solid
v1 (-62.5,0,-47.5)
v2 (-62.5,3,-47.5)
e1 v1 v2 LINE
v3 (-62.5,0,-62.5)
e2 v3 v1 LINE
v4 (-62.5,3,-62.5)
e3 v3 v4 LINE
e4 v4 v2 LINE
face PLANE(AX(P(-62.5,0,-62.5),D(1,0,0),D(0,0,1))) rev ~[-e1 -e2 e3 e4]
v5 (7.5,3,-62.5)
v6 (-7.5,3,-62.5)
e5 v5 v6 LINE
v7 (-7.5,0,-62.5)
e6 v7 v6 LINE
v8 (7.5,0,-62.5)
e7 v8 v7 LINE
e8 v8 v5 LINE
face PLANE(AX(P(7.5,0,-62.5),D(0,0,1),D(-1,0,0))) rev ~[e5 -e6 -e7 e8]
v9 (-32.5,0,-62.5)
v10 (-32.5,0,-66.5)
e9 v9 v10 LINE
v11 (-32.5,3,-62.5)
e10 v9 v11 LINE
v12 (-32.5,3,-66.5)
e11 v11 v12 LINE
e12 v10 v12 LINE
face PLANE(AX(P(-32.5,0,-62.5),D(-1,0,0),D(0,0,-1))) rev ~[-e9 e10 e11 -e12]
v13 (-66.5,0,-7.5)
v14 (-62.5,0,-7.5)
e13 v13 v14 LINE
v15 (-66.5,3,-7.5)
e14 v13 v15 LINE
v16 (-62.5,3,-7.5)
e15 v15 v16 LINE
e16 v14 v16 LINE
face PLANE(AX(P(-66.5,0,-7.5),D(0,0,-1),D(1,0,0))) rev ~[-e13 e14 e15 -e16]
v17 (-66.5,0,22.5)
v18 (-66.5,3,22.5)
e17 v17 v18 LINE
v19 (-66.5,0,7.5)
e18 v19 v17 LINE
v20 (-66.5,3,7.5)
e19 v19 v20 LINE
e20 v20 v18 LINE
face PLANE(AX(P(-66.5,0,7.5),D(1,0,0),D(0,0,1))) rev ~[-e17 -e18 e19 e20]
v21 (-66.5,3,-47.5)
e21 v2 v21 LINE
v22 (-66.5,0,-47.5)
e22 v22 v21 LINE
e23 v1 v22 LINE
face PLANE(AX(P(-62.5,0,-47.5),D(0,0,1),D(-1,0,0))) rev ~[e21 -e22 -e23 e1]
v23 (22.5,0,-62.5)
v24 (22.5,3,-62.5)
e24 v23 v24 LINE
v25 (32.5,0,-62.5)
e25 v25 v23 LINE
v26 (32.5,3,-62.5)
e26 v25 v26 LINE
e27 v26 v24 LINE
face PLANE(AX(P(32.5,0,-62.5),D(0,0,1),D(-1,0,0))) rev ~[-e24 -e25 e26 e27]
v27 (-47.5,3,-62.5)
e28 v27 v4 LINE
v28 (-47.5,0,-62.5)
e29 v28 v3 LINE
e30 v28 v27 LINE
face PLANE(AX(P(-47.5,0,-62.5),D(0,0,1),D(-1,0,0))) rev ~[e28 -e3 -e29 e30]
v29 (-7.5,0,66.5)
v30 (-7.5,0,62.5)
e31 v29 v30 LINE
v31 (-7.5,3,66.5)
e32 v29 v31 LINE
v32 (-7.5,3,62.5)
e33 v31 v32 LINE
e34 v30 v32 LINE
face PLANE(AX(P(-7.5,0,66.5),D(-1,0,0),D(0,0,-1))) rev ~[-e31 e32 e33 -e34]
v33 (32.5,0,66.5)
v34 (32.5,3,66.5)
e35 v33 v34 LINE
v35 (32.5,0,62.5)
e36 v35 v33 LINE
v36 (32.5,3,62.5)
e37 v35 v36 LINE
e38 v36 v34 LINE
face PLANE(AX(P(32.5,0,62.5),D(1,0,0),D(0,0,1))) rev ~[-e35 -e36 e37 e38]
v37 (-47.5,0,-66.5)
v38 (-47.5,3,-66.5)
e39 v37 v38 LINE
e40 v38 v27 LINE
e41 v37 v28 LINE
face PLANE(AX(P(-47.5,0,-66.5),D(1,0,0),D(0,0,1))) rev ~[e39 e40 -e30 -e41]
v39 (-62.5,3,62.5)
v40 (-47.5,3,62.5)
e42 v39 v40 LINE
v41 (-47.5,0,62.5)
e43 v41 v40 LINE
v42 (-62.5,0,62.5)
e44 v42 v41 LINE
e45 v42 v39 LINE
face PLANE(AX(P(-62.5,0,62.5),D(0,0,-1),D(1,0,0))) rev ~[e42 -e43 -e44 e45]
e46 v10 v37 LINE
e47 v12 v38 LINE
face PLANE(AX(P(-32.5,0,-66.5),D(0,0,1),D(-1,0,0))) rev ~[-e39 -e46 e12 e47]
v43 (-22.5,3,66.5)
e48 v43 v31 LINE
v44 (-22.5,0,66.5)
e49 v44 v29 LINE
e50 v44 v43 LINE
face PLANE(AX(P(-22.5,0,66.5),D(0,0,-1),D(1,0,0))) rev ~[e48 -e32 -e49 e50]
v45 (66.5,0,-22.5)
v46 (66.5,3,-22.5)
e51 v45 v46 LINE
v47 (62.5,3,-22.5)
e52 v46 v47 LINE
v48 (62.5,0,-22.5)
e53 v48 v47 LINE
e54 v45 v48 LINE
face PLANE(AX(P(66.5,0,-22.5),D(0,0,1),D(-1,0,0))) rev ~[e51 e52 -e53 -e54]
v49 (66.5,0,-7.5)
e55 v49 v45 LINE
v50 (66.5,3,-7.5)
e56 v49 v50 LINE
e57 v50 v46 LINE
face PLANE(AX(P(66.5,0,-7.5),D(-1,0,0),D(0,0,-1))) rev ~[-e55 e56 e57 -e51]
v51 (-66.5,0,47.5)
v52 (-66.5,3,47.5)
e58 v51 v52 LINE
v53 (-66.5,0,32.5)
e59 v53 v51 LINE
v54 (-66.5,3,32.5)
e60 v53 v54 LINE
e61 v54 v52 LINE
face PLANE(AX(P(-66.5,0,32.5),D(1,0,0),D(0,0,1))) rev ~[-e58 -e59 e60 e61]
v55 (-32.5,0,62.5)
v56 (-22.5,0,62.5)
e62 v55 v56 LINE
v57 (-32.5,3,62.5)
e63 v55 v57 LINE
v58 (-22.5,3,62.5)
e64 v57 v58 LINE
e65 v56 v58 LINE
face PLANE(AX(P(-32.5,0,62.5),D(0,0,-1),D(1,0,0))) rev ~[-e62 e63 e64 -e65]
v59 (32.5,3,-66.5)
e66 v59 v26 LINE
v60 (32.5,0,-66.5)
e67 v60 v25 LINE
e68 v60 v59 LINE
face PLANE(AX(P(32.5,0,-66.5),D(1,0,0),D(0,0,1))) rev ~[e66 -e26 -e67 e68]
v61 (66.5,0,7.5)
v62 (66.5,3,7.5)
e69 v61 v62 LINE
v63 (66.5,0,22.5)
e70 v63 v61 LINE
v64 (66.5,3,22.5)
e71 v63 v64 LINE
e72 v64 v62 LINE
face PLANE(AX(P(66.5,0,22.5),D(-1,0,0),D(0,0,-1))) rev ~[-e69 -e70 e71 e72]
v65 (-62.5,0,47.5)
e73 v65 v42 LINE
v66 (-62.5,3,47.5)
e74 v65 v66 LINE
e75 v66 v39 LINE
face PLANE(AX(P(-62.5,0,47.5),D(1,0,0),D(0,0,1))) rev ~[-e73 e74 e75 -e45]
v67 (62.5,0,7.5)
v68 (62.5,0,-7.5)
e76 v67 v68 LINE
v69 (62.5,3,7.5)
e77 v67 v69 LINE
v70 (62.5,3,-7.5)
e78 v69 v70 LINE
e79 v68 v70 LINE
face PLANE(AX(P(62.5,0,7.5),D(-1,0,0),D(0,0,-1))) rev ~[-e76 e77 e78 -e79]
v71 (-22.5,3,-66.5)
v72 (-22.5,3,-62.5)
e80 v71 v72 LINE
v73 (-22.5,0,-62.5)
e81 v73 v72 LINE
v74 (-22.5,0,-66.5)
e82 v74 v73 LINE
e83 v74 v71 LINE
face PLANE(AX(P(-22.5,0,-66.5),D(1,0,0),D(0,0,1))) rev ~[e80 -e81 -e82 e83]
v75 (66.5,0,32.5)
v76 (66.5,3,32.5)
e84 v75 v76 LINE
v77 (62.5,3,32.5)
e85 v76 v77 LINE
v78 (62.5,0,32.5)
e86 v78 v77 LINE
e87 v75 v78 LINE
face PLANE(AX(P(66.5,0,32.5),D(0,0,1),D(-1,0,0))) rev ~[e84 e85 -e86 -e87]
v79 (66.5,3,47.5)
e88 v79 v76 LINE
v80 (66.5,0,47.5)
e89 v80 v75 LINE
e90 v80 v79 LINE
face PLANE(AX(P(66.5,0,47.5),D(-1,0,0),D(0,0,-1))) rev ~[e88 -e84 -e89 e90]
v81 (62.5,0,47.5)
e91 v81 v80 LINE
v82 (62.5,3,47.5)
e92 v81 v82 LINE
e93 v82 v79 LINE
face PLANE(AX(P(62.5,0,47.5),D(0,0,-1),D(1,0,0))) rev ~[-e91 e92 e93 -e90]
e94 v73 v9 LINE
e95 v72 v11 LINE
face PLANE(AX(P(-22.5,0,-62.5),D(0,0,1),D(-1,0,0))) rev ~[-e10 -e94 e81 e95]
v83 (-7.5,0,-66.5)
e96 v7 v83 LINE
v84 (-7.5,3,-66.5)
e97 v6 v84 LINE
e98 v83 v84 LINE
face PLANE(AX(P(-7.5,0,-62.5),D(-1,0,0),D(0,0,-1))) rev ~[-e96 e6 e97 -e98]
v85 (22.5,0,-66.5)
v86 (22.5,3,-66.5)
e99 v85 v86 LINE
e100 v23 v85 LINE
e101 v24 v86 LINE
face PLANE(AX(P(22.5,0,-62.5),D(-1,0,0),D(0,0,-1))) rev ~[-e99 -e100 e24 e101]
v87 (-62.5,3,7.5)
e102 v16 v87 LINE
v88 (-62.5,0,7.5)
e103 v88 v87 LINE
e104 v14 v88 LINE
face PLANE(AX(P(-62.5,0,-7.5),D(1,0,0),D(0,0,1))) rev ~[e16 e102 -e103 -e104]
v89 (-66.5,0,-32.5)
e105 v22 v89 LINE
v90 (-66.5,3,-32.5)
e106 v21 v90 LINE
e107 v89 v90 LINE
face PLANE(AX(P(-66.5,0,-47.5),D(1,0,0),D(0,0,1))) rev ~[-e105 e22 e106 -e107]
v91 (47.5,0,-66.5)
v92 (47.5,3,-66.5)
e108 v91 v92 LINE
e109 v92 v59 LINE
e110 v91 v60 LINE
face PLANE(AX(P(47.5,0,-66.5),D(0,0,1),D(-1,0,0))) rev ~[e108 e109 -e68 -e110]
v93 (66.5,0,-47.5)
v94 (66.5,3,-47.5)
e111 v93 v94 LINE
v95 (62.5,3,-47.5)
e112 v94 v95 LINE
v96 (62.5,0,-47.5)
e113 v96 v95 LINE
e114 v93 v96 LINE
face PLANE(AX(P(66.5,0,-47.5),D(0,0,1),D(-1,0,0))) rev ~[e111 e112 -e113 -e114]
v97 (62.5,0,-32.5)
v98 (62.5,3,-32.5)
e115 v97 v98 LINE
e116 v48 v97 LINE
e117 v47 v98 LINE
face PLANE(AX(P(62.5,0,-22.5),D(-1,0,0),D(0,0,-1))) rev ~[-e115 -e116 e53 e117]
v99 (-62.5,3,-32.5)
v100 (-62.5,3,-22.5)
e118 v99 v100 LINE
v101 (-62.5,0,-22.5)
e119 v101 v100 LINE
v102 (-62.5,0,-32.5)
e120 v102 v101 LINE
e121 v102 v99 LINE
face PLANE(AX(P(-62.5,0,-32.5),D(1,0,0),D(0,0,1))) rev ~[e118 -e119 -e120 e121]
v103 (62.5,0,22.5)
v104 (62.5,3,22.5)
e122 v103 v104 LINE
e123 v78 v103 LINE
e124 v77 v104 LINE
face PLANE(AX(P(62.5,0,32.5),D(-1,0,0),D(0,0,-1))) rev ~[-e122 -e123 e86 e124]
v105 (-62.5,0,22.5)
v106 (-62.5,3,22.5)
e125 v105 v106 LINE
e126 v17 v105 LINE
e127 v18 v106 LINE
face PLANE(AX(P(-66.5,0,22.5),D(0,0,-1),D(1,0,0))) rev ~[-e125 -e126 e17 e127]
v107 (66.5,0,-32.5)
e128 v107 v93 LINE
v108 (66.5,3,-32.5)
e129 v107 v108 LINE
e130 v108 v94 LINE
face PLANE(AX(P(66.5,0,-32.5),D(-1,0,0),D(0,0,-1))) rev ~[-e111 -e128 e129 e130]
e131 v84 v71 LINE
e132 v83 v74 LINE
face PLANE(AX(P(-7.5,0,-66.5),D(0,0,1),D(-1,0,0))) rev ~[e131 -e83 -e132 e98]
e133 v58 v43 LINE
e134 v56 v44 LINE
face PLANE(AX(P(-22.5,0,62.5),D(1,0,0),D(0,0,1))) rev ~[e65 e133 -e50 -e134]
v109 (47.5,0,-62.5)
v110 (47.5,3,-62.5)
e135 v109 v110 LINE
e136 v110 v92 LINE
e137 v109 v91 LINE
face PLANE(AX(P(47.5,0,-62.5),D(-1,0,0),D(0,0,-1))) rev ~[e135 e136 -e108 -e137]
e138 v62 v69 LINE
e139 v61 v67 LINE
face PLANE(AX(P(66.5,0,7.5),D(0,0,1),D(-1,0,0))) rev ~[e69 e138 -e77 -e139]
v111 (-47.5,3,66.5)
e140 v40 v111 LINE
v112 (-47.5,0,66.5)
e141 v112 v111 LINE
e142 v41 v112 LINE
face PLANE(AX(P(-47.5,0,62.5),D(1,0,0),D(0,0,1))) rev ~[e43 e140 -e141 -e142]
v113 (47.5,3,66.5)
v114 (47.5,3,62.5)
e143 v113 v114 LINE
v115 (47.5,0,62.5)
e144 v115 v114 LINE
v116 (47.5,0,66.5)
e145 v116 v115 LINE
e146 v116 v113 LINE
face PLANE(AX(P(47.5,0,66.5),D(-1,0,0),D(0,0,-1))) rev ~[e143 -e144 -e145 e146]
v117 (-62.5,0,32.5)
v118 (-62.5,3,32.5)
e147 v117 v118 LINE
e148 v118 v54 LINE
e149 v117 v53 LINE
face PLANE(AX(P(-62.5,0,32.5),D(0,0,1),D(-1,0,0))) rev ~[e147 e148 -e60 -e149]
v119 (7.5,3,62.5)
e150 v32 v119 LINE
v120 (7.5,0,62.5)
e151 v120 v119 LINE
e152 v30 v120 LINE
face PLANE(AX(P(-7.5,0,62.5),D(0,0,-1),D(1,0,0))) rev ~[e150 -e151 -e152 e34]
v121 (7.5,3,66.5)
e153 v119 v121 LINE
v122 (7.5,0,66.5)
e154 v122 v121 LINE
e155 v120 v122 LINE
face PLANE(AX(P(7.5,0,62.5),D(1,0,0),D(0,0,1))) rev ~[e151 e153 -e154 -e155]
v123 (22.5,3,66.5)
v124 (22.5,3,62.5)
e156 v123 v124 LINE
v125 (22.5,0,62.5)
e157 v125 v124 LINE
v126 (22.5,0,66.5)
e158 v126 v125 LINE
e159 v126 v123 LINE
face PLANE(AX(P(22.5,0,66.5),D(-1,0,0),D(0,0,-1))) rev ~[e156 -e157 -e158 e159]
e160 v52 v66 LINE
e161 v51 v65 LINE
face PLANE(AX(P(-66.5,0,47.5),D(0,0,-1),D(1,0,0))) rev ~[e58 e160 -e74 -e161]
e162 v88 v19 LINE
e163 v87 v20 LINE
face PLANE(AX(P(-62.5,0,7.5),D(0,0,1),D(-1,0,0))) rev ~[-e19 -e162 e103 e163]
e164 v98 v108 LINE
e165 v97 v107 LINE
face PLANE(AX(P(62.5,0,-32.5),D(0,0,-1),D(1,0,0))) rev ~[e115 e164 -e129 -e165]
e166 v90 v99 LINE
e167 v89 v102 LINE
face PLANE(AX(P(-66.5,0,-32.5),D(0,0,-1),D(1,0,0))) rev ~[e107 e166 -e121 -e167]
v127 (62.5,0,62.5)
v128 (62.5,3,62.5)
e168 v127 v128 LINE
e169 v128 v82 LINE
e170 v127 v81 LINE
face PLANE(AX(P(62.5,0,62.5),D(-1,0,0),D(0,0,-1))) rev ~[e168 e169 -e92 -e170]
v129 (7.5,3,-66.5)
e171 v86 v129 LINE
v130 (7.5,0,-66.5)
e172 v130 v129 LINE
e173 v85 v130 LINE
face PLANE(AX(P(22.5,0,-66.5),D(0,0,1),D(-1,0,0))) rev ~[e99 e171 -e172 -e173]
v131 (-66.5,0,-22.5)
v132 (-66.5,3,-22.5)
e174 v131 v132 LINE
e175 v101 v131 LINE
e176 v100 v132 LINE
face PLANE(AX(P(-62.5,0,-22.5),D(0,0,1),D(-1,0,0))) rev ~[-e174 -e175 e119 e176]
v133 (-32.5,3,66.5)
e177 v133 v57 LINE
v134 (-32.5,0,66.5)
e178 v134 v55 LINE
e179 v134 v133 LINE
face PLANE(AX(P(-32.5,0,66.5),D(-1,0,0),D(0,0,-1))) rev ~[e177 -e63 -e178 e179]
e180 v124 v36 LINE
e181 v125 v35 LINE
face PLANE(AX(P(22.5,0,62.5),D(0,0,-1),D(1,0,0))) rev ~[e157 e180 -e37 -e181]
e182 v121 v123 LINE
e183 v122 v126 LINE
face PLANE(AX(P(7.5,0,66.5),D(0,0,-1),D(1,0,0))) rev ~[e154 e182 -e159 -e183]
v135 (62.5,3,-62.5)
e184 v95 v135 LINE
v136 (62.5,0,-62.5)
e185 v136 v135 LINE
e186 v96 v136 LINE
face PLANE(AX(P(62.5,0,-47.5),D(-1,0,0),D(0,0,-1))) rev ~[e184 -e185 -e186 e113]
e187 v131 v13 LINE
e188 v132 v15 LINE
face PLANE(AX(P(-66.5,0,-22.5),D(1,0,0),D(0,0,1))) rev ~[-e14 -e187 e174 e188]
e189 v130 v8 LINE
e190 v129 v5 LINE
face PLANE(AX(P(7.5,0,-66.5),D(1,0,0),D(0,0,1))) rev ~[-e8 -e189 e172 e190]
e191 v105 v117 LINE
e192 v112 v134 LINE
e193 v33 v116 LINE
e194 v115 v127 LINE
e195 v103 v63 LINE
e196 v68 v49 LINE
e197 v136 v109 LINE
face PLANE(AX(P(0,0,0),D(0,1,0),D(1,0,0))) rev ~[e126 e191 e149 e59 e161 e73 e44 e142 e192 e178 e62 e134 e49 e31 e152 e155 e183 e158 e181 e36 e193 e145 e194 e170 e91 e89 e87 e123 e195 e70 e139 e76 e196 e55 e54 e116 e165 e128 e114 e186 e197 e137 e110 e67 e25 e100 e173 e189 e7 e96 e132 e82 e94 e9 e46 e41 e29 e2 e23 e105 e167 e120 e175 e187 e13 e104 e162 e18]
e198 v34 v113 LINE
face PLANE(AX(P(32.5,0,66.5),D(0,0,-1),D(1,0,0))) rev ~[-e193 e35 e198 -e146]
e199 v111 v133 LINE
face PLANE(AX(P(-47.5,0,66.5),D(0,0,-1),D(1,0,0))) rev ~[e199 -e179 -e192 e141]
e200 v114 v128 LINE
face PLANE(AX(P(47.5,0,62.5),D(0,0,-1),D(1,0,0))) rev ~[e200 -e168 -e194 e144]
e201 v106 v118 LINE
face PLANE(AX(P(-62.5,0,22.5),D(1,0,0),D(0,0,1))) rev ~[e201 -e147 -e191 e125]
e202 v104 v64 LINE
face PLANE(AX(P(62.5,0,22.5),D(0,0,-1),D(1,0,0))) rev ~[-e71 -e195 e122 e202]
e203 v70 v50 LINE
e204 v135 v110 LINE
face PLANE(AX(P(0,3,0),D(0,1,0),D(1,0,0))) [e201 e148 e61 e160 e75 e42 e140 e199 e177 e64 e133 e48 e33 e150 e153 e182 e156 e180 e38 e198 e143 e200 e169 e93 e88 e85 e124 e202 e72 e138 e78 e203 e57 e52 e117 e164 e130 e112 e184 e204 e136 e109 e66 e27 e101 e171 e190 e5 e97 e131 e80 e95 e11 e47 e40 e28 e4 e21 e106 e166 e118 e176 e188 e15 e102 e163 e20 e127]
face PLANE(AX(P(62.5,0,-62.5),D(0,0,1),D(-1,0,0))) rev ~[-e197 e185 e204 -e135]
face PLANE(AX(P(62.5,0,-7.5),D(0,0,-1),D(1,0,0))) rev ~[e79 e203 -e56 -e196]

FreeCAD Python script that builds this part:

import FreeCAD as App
import Part
import Sketcher

V = App.Vector
Q = App.Units.Quantity


def add_polygon(sketch, points):
    """Adds a closed chain of lines whose ends are joined by coincident constraints."""
    first, n = sketch.GeometryCount, len(points)
    for a, b in zip(points, points[1:] + points[:1]):
        sketch.addGeometry(Part.LineSegment(App.Vector(*a, 0), App.Vector(*b, 0)), False)
    for i in range(n):
        sketch.addConstraint(Sketcher.Constraint("Coincident", first + i, 2, first + (i + 1) % n, 1))

doc = App.newDocument("Part")
body = doc.addObject("PartDesign::Body", "Body")

sketch1 = doc.addObject("Sketcher::SketchObject", "Sketch")
body.addObject(sketch1)
sketch1.AttachmentSupport = (doc.XZ_Plane, [""])
sketch1.MapMode = "FlatFace"
add_polygon(sketch1, [(7.5, 62.5), (7.5, 66.5), (22.5, 66.5), (22.5, 62.5), (32.5, 62.5), (32.5, 66.5), (47.5, 66.5), (47.5, 62.5), (62.5, 62.5), (62.5, 47.5), (66.5, 47.5), (66.5, 32.5), (62.5, 32.5), (62.5, 22.5), (66.5, 22.5), (66.5, 7.5), (62.5, 7.5), (62.5, -7.5), (66.5, -7.5), (66.5, -22.5), (62.5, -22.5), (62.5, -32.5), (66.5, -32.5), (66.5, -47.5), (62.5, -47.5), (62.5, -62.5), (47.5, -62.5), (47.5, -66.5), (32.5, -66.5), (32.5, -62.5), (22.5, -62.5), (22.5, -66.5), (7.5, -66.5), (7.5, -62.5), (-7.5, -62.5), (-7.5, -66.5), (-22.5, -66.5), (-22.5, -62.5), (-32.5, -62.5), (-32.5, -66.5), (-47.5, -66.5), (-47.5, -62.5), (-62.5, -62.5), (-62.5, -47.5), (-66.5, -47.5), (-66.5, -32.5), (-62.5, -32.5), (-62.5, -22.5), (-66.5, -22.5), (-66.5, -7.5), (-62.5, -7.5), (-62.5, 7.5), (-66.5, 7.5), (-66.5, 22.5), (-62.5, 22.5), (-62.5, 32.5), (-66.5, 32.5), (-66.5, 47.5), (-62.5, 47.5), (-62.5, 62.5), (-47.5, 62.5), (-47.5, 66.5), (-32.5, 66.5), (-32.5, 62.5), (-22.5, 62.5), (-22.5, 66.5), (-7.5, 66.5), (-7.5, 62.5)])
sketch1.addConstraint(Sketcher.Constraint("Vertical", 0))
sketch1.addConstraint(Sketcher.Constraint("Horizontal", 1))
sketch1.addConstraint(Sketcher.Constraint("Vertical", 2))
sketch1.addConstraint(Sketcher.Constraint("Horizontal", 3))
sketch1.addConstraint(Sketcher.Constraint("Vertical", 4))
sketch1.addConstraint(Sketcher.Constraint("Horizontal", 5))
sketch1.addConstraint(Sketcher.Constraint("Vertical", 6))
sketch1.addConstraint(Sketcher.Constraint("Horizontal", 7))
sketch1.addConstraint(Sketcher.Constraint("Vertical", 8))
sketch1.addConstraint(Sketcher.Constraint("Horizontal", 9))
sketch1.addConstraint(Sketcher.Constraint("Vertical", 10))
sketch1.addConstraint(Sketcher.Constraint("Horizontal", 11))
sketch1.addConstraint(Sketcher.Constraint("Vertical", 12))
sketch1.addConstraint(Sketcher.Constraint("Horizontal", 13))
sketch1.addConstraint(Sketcher.Constraint("Vertical", 14))
sketch1.addConstraint(Sketcher.Constraint("Horizontal", 15))
sketch1.addConstraint(Sketcher.Constraint("Vertical", 16))
sketch1.addConstraint(Sketcher.Constraint("Horizontal", 17))
sketch1.addConstraint(Sketcher.Constraint("Vertical", 18))
sketch1.addConstraint(Sketcher.Constraint("Horizontal", 19))
sketch1.addConstraint(Sketcher.Constraint("Vertical", 20))
sketch1.addConstraint(Sketcher.Constraint("Horizontal", 21))
sketch1.addConstraint(Sketcher.Constraint("Vertical", 22))
sketch1.addConstraint(Sketcher.Constraint("Horizontal", 23))
sketch1.addConstraint(Sketcher.Constraint("Vertical", 24))
sketch1.addConstraint(Sketcher.Constraint("Horizontal", 25))
sketch1.addConstraint(Sketcher.Constraint("Vertical", 26))
sketch1.addConstraint(Sketcher.Constraint("Horizontal", 27))
sketch1.addConstraint(Sketcher.Constraint("Vertical", 28))
sketch1.addConstraint(Sketcher.Constraint("Horizontal", 29))
sketch1.addConstraint(Sketcher.Constraint("Vertical", 30))
sketch1.addConstraint(Sketcher.Constraint("Horizontal", 31))
sketch1.addConstraint(Sketcher.Constraint("Vertical", 32))
sketch1.addConstraint(Sketcher.Constraint("Horizontal", 33))
sketch1.addConstraint(Sketcher.Constraint("Vertical", 34))
sketch1.addConstraint(Sketcher.Constraint("Horizontal", 35))
sketch1.addConstraint(Sketcher.Constraint("Vertical", 36))
sketch1.addConstraint(Sketcher.Constraint("Horizontal", 37))
sketch1.addConstraint(Sketcher.Constraint("Vertical", 38))
sketch1.addConstraint(Sketcher.Constraint("Horizontal", 39))
sketch1.addConstraint(Sketcher.Constraint("Vertical", 40))
sketch1.addConstraint(Sketcher.Constraint("Horizontal", 41))
sketch1.addConstraint(Sketcher.Constraint("Vertical", 42))
sketch1.addConstraint(Sketcher.Constraint("Horizontal", 43))
sketch1.addConstraint(Sketcher.Constraint("Vertical", 44))
sketch1.addConstraint(Sketcher.Constraint("Horizontal", 45))
sketch1.addConstraint(Sketcher.Constraint("Vertical", 46))
sketch1.addConstraint(Sketcher.Constraint("Horizontal", 47))
sketch1.addConstraint(Sketcher.Constraint("Vertical", 48))
sketch1.addConstraint(Sketcher.Constraint("Horizontal", 49))
sketch1.addConstraint(Sketcher.Constraint("Vertical", 50))
sketch1.addConstraint(Sketcher.Constraint("Horizontal", 51))
sketch1.addConstraint(Sketcher.Constraint("Vertical", 52))
sketch1.addConstraint(Sketcher.Constraint("Horizontal", 53))
sketch1.addConstraint(Sketcher.Constraint("Vertical", 54))
sketch1.addConstraint(Sketcher.Constraint("Horizontal", 55))
sketch1.addConstraint(Sketcher.Constraint("Vertical", 56))
sketch1.addConstraint(Sketcher.Constraint("Horizontal", 57))
sketch1.addConstraint(Sketcher.Constraint("Vertical", 58))
sketch1.addConstraint(Sketcher.Constraint("Horizontal", 59))
sketch1.addConstraint(Sketcher.Constraint("Vertical", 60))
sketch1.addConstraint(Sketcher.Constraint("Horizontal", 61))
sketch1.addConstraint(Sketcher.Constraint("Vertical", 62))
sketch1.addConstraint(Sketcher.Constraint("Horizontal", 63))
sketch1.addConstraint(Sketcher.Constraint("Vertical", 64))
sketch1.addConstraint(Sketcher.Constraint("Horizontal", 65))
sketch1.addConstraint(Sketcher.Constraint("Vertical", 66))
sketch1.addConstraint(Sketcher.Constraint("Horizontal", 67))
sketch1.addConstraint(Sketcher.Constraint("Symmetric", 0, 2, 34, 2, -1, 1))
sketch1.addConstraint(Sketcher.Constraint("Symmetric", 2, 2, 36, 2, -1, 1))
sketch1.addConstraint(Sketcher.Constraint("Symmetric", 4, 2, 38, 2, -1, 1))
sketch1.addConstraint(Sketcher.Constraint("Symmetric", 6, 2, 40, 2, -1, 1))
sketch1.addConstraint(Sketcher.Constraint("Symmetric", 8, 2, 42, 2, -1, 1))
sketch1.addConstraint(Sketcher.Constraint("Symmetric", 10, 2, 44, 2, -1, 1))
sketch1.addConstraint(Sketcher.Constraint("Symmetric", 12, 2, 46, 2, -1, 1))
sketch1.addConstraint(Sketcher.Constraint("Symmetric", 14, 2, 48, 2, -1, 1))
sketch1.addConstraint(Sketcher.Constraint("Symmetric", 16, 2, 50, 2, -1, 1))
sketch1.addConstraint(Sketcher.Constraint("Symmetric", 18, 2, 52, 2, -1, 1))
sketch1.addConstraint(Sketcher.Constraint("Symmetric", 20, 2, 54, 2, -1, 1))
sketch1.addConstraint(Sketcher.Constraint("Symmetric", 22, 2, 56, 2, -1, 1))
sketch1.addConstraint(Sketcher.Constraint("Symmetric", 24, 2, 58, 2, -1, 1))
sketch1.addConstraint(Sketcher.Constraint("Symmetric", 26, 2, 60, 2, -1, 1))
sketch1.addConstraint(Sketcher.Constraint("Symmetric", 28, 2, 62, 2, -1, 1))
sketch1.addConstraint(Sketcher.Constraint("Symmetric", 30, 2, 64, 2, -1, 1))
sketch1.addConstraint(Sketcher.Constraint("Symmetric", 32, 2, 66, 2, -1, 1))
sketch1.addConstraint(Sketcher.Constraint("Symmetric", 31, 2, 34, 2, -2))
sketch1.addConstraint(Sketcher.Constraint("Symmetric", 29, 2, 36, 2, -2))
sketch1.addConstraint(Sketcher.Constraint("Symmetric", 27, 2, 38, 2, -2))
sketch1.addConstraint(Sketcher.Constraint("Symmetric", 25, 2, 40, 2, -2))
sketch1.addConstraint(Sketcher.Constraint("Symmetric", 23, 2, 42, 2, -2))
sketch1.addConstraint(Sketcher.Constraint("Symmetric", 21, 2, 44, 2, -2))
sketch1.addConstraint(Sketcher.Constraint("Symmetric", 19, 2, 46, 2, -2))
sketch1.addConstraint(Sketcher.Constraint("Symmetric", 17, 2, 48, 2, -2))
sketch1.addConstraint(Sketcher.Constraint("Horizontal", 1, 2, 4, 2))
sketch1.addConstraint(Sketcher.Constraint("Horizontal", 3, 2, 6, 2))
sketch1.addConstraint(Sketcher.Constraint("Horizontal", 29, 2, 32, 2))
sketch1.addConstraint(Sketcher.Constraint("Vertical", 8, 2, 11, 2))
sketch1.addConstraint(Sketcher.Constraint("Vertical", 10, 2, 13, 2))
sketch1.addConstraint(Sketcher.Constraint("Vertical", 12, 2, 15, 2))
sketch1.addConstraint(Sketcher.Constraint("Equal", 1, 5))
sketch1.addConstraint(Sketcher.Constraint("Equal", 5, 7))
sketch1.addConstraint(Sketcher.Constraint("Equal", 31, 33))
sketch1.addConstraint(Sketcher.Constraint("Equal", 57, 0))
sketch1.addConstraint(Sketcher.Constraint("Equal", 67, 8))
sketch1.addConstraint(Sketcher.Constraint("Equal", 8, 10))
sketch1.addConstraint(Sketcher.Constraint("Equal", 63, 12))
sketch1.addConstraint(Sketcher.Constraint("Equal", 10, 14))
sketch1.addConstraint(Sketcher.Constraint("Equal", 14, 16))
sketch1.addConstraint(Sketcher.Constraint("DistanceX", 1, 1, 1, 2, Q("15 mm")))
sketch1.addConstraint(Sketcher.Constraint("DistanceX", 3, 1, 3, 2, Q("10 mm")))
sketch1.addConstraint(Sketcher.Constraint("DistanceX", 9, 1, 9, 2, Q("4 mm")))
pad1 = doc.addObject("PartDesign::Pad", "Pad")
body.addObject(pad1)
pad1.Profile = sketch1
pad1.Length = 3
pad1.Reversed = True

doc.recompute()
